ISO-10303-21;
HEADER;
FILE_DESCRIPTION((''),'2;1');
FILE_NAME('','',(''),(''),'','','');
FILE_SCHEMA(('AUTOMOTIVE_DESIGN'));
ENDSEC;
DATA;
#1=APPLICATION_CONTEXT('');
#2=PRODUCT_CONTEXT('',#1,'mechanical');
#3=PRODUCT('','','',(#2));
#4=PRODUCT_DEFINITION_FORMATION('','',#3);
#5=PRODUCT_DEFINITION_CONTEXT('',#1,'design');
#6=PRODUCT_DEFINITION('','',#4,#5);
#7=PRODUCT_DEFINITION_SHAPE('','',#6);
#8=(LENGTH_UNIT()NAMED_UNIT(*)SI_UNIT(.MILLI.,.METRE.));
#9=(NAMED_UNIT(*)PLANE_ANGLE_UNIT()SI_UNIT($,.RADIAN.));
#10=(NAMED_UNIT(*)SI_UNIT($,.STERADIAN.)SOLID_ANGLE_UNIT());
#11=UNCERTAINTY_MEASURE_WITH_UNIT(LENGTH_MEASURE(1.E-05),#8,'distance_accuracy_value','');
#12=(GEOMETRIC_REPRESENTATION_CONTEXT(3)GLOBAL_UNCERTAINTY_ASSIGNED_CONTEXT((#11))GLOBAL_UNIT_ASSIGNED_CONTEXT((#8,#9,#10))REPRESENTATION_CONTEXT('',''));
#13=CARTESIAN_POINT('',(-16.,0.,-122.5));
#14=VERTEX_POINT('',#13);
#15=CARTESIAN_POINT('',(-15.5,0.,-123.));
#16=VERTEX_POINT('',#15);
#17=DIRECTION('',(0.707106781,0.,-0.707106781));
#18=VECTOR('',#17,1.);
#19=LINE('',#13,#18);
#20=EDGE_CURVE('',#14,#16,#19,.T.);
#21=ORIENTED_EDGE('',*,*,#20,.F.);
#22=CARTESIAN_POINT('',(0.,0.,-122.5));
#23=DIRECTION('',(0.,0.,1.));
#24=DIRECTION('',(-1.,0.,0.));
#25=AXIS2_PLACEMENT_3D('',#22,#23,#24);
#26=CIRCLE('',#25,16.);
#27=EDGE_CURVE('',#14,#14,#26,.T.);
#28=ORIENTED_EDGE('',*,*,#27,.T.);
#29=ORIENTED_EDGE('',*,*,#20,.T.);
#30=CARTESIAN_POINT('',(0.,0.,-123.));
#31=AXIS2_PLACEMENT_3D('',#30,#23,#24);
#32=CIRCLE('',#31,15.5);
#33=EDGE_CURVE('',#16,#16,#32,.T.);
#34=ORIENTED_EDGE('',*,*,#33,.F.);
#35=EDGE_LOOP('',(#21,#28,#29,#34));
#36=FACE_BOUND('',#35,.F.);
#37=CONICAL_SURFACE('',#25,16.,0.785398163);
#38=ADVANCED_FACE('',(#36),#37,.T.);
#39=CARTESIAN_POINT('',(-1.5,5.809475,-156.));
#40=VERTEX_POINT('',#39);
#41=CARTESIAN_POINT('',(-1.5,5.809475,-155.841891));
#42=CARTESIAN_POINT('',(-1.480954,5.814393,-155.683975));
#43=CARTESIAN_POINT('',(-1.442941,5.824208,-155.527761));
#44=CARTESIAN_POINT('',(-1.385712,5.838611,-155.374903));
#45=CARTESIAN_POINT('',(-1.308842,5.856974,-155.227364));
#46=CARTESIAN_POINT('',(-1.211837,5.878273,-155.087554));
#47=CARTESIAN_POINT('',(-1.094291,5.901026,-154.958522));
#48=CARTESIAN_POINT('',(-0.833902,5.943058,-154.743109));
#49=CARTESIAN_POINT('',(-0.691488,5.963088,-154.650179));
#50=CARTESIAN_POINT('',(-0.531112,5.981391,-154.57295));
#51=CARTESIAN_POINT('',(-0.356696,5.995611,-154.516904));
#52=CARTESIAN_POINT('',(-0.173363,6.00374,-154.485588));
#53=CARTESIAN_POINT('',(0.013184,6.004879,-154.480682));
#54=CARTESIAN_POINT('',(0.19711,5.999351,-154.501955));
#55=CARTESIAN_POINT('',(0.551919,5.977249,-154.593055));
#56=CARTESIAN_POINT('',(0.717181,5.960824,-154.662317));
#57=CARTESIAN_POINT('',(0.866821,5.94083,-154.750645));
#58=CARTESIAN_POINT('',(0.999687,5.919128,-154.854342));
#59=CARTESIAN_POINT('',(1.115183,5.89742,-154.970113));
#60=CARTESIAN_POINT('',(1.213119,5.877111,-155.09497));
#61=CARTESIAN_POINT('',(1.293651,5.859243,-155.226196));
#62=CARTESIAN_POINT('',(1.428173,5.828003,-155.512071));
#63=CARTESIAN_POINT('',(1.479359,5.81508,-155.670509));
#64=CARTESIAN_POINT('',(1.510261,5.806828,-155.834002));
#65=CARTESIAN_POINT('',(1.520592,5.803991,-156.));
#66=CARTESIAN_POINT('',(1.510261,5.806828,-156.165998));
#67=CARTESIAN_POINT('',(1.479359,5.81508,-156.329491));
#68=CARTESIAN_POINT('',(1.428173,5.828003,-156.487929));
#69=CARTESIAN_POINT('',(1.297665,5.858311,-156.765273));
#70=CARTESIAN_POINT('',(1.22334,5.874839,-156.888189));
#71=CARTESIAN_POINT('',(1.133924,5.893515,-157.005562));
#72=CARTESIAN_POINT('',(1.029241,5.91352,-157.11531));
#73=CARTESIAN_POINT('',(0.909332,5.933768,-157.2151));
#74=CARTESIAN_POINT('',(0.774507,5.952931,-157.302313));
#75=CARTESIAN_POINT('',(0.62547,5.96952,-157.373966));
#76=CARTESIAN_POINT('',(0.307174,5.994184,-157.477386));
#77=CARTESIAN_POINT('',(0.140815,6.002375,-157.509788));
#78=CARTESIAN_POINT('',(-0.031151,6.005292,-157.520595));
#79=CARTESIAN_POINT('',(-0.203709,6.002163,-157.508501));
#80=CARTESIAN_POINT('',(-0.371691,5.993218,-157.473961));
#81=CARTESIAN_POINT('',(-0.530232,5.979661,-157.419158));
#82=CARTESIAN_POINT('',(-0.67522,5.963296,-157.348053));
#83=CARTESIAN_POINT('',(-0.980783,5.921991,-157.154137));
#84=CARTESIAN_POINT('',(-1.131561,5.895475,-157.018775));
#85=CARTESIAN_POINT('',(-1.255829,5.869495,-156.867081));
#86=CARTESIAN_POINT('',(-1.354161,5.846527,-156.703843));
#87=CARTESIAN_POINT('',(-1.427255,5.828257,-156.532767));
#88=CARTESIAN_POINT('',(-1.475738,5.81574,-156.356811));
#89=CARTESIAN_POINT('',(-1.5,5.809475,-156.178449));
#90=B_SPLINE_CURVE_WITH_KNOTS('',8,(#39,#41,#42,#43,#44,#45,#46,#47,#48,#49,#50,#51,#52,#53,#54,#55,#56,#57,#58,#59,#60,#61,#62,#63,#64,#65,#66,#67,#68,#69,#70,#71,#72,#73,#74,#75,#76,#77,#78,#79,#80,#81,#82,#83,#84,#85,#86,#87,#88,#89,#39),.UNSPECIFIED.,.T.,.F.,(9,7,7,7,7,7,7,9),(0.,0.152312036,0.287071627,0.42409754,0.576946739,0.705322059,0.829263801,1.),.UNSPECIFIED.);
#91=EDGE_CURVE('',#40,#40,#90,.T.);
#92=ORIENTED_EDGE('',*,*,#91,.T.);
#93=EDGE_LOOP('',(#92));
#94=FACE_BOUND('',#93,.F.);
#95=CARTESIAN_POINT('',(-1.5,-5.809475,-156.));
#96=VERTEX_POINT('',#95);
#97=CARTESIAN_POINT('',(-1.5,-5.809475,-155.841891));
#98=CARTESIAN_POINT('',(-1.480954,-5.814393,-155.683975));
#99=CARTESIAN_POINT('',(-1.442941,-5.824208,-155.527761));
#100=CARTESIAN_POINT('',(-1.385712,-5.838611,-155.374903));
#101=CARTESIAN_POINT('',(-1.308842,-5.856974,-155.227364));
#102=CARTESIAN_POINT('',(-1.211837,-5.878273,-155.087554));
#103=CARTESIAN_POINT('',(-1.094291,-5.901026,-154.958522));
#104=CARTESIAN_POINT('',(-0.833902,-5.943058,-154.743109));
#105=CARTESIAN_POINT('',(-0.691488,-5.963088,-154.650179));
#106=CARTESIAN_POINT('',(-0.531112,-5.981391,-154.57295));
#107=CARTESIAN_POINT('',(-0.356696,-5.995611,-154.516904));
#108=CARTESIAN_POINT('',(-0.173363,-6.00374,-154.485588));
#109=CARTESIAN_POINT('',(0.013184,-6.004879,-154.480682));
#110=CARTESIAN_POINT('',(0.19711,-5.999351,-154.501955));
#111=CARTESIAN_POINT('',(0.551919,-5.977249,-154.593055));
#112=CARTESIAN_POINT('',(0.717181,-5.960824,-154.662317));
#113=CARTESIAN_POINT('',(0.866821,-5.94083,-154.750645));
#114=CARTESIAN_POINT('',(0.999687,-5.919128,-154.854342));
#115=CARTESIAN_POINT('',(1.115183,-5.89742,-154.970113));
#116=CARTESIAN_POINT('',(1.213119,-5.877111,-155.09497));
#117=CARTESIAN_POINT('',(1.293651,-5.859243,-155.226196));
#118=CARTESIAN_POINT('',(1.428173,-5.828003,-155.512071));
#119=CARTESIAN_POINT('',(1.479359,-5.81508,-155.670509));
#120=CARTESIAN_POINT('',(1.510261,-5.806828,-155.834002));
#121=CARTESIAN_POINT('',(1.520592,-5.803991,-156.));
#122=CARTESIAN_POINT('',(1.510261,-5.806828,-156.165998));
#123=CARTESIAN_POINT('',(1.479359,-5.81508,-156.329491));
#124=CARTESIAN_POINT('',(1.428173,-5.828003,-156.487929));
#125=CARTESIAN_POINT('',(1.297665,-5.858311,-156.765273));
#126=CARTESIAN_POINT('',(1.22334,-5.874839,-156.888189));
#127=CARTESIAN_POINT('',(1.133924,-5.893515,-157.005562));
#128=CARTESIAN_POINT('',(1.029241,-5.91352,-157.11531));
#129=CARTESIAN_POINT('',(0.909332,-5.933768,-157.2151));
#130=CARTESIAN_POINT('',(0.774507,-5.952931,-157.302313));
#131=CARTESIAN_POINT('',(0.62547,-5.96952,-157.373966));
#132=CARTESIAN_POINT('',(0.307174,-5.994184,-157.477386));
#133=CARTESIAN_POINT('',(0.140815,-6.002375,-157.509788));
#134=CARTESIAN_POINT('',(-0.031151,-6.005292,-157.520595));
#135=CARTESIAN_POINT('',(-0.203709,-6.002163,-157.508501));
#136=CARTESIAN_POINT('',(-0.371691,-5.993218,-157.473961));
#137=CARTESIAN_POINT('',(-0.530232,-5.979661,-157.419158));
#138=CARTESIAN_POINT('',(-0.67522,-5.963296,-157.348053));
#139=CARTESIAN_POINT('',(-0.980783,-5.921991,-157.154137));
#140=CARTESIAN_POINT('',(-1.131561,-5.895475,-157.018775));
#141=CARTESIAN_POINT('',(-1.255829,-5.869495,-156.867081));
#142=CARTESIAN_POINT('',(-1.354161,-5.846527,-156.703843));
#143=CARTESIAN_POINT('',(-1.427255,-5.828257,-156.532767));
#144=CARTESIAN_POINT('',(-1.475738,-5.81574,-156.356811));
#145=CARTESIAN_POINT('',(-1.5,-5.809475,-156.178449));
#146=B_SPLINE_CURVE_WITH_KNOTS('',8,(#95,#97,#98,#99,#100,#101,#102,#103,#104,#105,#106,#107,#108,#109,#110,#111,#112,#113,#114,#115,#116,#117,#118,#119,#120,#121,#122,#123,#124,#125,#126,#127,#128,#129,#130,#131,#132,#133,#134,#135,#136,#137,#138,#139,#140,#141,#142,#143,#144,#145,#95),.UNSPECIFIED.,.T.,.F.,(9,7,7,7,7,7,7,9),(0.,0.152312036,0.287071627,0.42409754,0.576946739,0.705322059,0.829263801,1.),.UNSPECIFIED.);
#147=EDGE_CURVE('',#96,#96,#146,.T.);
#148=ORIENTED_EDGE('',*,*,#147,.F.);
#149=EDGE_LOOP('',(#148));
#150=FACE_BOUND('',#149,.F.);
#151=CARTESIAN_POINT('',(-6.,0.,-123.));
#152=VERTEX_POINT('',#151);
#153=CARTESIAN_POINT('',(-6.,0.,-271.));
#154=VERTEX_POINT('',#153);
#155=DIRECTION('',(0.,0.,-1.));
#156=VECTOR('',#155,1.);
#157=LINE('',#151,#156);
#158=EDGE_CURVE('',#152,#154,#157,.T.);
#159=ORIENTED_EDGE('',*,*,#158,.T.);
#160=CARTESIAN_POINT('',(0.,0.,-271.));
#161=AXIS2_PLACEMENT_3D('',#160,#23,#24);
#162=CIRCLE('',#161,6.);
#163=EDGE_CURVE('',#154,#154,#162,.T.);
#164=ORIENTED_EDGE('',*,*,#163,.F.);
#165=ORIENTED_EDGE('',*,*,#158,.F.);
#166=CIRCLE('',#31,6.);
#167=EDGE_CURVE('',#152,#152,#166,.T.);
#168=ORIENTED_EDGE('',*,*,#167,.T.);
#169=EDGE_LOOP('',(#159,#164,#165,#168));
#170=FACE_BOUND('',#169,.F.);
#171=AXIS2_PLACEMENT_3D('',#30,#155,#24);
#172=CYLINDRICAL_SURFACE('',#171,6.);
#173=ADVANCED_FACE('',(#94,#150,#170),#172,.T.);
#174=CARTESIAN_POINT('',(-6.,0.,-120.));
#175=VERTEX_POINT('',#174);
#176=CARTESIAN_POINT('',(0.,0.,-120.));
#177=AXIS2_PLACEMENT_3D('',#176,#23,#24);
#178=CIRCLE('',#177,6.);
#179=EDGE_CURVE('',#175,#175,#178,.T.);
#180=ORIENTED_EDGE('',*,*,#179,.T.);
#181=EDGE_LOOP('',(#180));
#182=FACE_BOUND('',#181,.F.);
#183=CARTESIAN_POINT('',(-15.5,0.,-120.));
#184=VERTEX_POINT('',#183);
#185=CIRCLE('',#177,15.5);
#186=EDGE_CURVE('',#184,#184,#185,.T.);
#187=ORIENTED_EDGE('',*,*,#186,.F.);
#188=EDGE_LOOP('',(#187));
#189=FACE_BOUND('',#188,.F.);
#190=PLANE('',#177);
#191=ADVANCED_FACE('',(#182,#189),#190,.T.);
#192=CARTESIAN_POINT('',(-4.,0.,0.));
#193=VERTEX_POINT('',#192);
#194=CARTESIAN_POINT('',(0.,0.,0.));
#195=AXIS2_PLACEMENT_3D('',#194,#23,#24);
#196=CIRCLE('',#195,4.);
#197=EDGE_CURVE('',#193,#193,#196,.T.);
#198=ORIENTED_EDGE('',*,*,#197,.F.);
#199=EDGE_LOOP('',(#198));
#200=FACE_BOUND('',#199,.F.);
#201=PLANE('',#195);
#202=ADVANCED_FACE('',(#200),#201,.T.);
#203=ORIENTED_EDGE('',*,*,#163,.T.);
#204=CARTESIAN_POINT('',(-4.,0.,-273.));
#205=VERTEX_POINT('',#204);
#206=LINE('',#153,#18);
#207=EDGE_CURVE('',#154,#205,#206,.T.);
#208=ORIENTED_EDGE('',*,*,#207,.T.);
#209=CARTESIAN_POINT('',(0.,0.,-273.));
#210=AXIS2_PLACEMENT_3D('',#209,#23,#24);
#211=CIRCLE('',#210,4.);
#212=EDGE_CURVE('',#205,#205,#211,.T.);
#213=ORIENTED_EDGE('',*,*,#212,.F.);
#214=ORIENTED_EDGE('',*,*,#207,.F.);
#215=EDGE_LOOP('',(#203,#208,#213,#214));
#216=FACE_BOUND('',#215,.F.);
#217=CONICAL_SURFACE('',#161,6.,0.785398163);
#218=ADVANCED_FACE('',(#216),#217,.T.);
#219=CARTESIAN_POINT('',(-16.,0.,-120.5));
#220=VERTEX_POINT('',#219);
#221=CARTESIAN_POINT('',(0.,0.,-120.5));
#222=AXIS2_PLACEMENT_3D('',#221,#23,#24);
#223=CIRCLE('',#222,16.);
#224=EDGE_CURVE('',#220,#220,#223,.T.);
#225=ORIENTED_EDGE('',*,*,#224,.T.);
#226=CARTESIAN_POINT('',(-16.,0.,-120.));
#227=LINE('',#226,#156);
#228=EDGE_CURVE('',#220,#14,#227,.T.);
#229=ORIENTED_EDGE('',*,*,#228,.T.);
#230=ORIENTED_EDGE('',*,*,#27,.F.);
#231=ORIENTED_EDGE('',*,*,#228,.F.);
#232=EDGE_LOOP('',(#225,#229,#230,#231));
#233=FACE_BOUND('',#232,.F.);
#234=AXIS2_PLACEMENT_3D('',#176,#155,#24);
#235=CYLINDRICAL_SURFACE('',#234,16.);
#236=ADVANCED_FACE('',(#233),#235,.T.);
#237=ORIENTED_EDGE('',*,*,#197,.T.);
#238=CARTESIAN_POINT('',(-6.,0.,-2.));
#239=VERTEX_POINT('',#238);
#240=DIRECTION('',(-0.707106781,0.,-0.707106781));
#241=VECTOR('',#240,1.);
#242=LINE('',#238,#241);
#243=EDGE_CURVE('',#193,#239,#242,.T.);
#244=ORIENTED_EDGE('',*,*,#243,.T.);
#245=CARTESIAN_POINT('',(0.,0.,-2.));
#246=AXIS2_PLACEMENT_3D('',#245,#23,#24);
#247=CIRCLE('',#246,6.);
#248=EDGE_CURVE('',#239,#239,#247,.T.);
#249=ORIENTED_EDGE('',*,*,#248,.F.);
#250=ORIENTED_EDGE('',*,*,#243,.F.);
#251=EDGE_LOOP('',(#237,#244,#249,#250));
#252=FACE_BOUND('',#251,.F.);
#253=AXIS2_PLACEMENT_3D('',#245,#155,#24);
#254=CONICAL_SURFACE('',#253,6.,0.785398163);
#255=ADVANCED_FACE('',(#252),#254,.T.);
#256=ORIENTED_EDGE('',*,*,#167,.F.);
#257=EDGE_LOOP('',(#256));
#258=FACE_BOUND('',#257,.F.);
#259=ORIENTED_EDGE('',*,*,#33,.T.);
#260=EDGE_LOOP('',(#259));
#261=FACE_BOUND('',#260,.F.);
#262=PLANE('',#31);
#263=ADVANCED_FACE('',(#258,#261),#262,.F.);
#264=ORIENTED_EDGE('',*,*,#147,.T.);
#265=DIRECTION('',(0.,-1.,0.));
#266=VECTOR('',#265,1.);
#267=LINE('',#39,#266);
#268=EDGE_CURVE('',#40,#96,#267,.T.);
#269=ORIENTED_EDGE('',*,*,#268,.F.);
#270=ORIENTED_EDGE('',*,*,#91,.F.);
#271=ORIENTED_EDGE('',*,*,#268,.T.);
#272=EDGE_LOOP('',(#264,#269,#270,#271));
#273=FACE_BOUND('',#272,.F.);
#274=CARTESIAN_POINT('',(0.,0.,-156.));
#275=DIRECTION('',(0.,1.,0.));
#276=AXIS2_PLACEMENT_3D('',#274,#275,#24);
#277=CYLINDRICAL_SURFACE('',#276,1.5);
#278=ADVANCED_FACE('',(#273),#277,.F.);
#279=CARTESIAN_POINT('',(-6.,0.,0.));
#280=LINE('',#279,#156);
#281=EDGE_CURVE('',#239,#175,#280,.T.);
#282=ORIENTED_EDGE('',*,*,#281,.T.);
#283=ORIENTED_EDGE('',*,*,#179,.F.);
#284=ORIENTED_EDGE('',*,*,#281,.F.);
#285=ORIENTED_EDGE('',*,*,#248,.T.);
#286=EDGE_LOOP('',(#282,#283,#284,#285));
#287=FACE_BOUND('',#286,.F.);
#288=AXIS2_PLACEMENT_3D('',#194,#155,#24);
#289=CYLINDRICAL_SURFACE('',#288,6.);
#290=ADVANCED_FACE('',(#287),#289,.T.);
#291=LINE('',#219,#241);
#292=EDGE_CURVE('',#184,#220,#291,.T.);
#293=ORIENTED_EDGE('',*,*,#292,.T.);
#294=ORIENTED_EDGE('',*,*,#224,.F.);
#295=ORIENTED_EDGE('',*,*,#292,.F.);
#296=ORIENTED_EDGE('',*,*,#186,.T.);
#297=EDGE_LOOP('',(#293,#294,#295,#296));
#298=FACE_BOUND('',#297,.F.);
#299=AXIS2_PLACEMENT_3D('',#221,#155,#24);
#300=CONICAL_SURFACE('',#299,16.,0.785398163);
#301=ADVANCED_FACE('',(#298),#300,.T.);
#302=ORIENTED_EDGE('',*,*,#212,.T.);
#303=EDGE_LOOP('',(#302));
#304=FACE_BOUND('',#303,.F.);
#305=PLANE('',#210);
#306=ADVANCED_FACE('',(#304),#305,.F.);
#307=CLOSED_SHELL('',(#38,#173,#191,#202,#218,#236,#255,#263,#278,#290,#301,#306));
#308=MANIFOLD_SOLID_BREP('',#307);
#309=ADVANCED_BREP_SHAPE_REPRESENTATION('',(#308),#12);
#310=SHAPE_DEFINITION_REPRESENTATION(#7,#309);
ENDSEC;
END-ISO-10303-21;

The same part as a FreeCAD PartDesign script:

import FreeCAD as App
import Part
import Sketcher
from FreeCAD import Vector


def edges_at(feature, points):
    """Names of the edges that pass closest to the given points."""
    edges = feature.Shape.Edges
    near = lambda p: min(range(len(edges)), key=lambda i: edges[i].distToShape(Part.Vertex(*p))[0])
    return sorted({f"Edge{near(p) + 1}" for p in points})


def add_polygon(sketch, points):
    """Adds a closed chain of lines whose ends are joined by coincident constraints."""
    first, n = sketch.GeometryCount, len(points)
    for a, b in zip(points, points[1:] + points[:1]):
        sketch.addGeometry(Part.LineSegment(App.Vector(*a, 0), App.Vector(*b, 0)), False)
    for i in range(n):
        sketch.addConstraint(Sketcher.Constraint("Coincident", first + i, 2, first + (i + 1) % n, 1))

doc = App.newDocument("Part")
body = doc.addObject("PartDesign::Body", "Body")

# Sketch on XZ plane
sketch1 = body.newObject("Sketcher::SketchObject", "Sketch")
sketch1.AttachmentSupport = (doc.getObject("XZ_Plane"), [""])
sketch1.MapMode = "FlatFace"
add_polygon(sketch1, [(-6, 0), (0, 0), (0, -273), (-6, -273), (-6, -123), (-16, -123), (-16, -120), (-6, -120)])  # lines 0-7
sketch1.addConstraint(Sketcher.Constraint("Horizontal", 0))
sketch1.addConstraint(Sketcher.Constraint("Vertical", 1))
sketch1.addConstraint(Sketcher.Constraint("Horizontal", 2))
sketch1.addConstraint(Sketcher.Constraint("Vertical", 3))
sketch1.addConstraint(Sketcher.Constraint("Horizontal", 4))
sketch1.addConstraint(Sketcher.Constraint("Vertical", 5))
sketch1.addConstraint(Sketcher.Constraint("Horizontal", 6))
sketch1.addConstraint(Sketcher.Constraint("Vertical", 7))
sketch1.addConstraint(Sketcher.Constraint("Coincident", 0, 2, -1, 1))
sketch1.addConstraint(Sketcher.Constraint("Vertical", 3, 2, 6, 2))
sketch1.addConstraint(Sketcher.Constraint("DistanceX", 0, 1, 0, 2, 6.0))
sketch1.addConstraint(Sketcher.Constraint("DistanceX", 4, 2, 4, 1, 10.0))
sketch1.addConstraint(Sketcher.Constraint("DistanceY", 3, 1, 3, 2, 150.0))
sketch1.addConstraint(Sketcher.Constraint("DistanceY", 5, 1, 5, 2, 3.0))
sketch1.addConstraint(Sketcher.Constraint("DistanceY", 7, 1, 7, 2, 120.0))
revolution = body.newObject("PartDesign::Revolution", "Revolution")
revolution.Profile = sketch1
revolution.ReferenceAxis = (sketch1, ["V_Axis"])
revolution.Angle = 360

# Sketch on XZ plane
sketch2 = body.newObject("Sketcher::SketchObject", "Sketch001")
sketch2.AttachmentSupport = (doc.getObject("XZ_Plane"), [""])
sketch2.MapMode = "FlatFace"
sketch2.addGeometry(Part.Circle(Vector(0, -156, 0), Vector(0, 0, 1), 1.5), False)
sketch2.addConstraint(Sketcher.Constraint("PointOnObject", 0, 3, -2))
sketch2.addConstraint(Sketcher.Constraint("Diameter", 0, 3.0))
sketch2.addConstraint(Sketcher.Constraint("DistanceY", 0, 3, -1, 1, 156.0))
pocket1 = body.newObject("PartDesign::Pocket", "Pocket")
pocket1.Profile = sketch2
pocket1.Type = "ThroughAll"
pocket1.Midplane = True
doc.recompute()

chamfer = body.newObject("PartDesign::Chamfer", "Chamfer")
chamfer.Base = (pocket1, edges_at(pocket1, [(6, 0, -273), (6, 0, 0)]))
chamfer.Size = 2
doc.recompute()

chamfer2 = body.newObject("PartDesign::Chamfer", "Chamfer001")
chamfer2.Base = (chamfer, edges_at(chamfer, [(16, 0, -123), (16, 0, -120)]))
chamfer2.Size = 0.5

doc.recompute()
